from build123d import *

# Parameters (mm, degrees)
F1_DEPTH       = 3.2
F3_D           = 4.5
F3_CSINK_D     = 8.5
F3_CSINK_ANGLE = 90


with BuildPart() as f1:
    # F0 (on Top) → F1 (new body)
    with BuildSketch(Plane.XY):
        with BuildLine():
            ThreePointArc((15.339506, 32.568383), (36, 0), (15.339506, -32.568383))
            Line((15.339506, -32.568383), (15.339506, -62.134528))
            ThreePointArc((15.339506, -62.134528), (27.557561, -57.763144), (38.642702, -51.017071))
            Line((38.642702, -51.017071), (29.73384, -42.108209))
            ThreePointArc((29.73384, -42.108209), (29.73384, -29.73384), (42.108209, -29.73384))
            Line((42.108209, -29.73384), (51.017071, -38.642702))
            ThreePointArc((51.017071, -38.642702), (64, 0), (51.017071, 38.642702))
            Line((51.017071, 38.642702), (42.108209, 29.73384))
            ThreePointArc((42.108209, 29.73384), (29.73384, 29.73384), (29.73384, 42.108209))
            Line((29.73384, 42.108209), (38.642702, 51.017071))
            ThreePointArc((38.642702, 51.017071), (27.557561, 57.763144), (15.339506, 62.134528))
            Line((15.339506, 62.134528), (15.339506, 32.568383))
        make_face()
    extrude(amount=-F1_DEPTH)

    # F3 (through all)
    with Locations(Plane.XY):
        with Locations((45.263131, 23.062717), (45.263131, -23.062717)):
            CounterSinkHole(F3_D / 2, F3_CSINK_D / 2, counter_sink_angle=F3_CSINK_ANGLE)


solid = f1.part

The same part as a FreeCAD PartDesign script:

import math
import FreeCAD as App
import Part
import Sketcher

V = App.Vector
Q = App.Units.Quantity

doc = App.newDocument("Part")
body = doc.addObject("PartDesign::Body", "Body")

# Sketch on XY plane
sketch1 = doc.addObject("Sketcher::SketchObject", "Sketch")
body.addObject(sketch1)
sketch1.AttachmentSupport = (doc.XY_Plane, [""])
sketch1.MapMode = "FlatFace"
sketch1.addGeometry([
    Part.ArcOfCircle(Part.Circle(V(0, 0, 0), V(0, 0, 1), 36), math.radians(-64.779855), math.radians(64.779855)),  # 0
    Part.LineSegment(V(15.339506, -32.568383, 0), V(15.339506, -62.134528, 0)),  # 1
    Part.ArcOfCircle(Part.Circle(V(-0.000003, 0.000003, 0), V(0, 0, 1), 64.000003), math.radians(-76.132357), math.radians(-52.858018)),  # 2
    Part.LineSegment(V(38.642702, -51.017071, 0), V(29.73384, -42.108209, 0)),  # 3
    Part.ArcOfCircle(Part.Circle(V(35.921025, -35.921025, 0), V(0, 0, 1), 8.75), math.radians(45), math.radians(225)),  # 4
    Part.LineSegment(V(42.108209, -29.73384, 0), V(51.017071, -38.642702, 0)),  # 5
    Part.ArcOfCircle(Part.Circle(V(0.000002, 0, 0), V(0, 0, 1), 63.999998), math.radians(-37.141982), math.radians(37.141982)),  # 6
    Part.LineSegment(V(51.017071, 38.642702, 0), V(42.108209, 29.73384, 0)),  # 7
    Part.ArcOfCircle(Part.Circle(V(35.921025, 35.921025, 0), V(0, 0, 1), 8.75), math.radians(135), math.radians(315)),  # 8
    Part.LineSegment(V(29.73384, 42.108209, 0), V(38.642702, 51.017071, 0)),  # 9
    Part.ArcOfCircle(Part.Circle(V(-0.000003, -0.000003, 0), V(0, 0, 1), 64.000003), math.radians(52.858018), math.radians(76.132357)),  # 10
    Part.LineSegment(V(15.339506, 62.134528, 0), V(15.339506, 32.568383, 0)),  # 11
], False)
sketch1.addConstraint([
    Sketcher.Constraint("Coincident", 0, 1, 1, 1),
    Sketcher.Constraint("Coincident", 1, 2, 2, 1),
    Sketcher.Constraint("Coincident", 2, 2, 3, 1),
    Sketcher.Constraint("Coincident", 3, 2, 4, 2),
    Sketcher.Constraint("Coincident", 4, 1, 5, 1),
    Sketcher.Constraint("Coincident", 5, 2, 6, 1),
    Sketcher.Constraint("Coincident", 6, 2, 7, 1),
    Sketcher.Constraint("Coincident", 7, 2, 8, 2),
    Sketcher.Constraint("Coincident", 8, 1, 9, 1),
    Sketcher.Constraint("Coincident", 9, 2, 10, 1),
    Sketcher.Constraint("Coincident", 10, 2, 11, 1),
    Sketcher.Constraint("Coincident", 11, 2, 0, 2),
    Sketcher.Constraint("Vertical", 1),
    Sketcher.Constraint("Vertical", 11),
    Sketcher.Constraint("Coincident", 0, 3, -1, 1),
    Sketcher.Constraint("Coincident", 2, 3, -1, 1),
    Sketcher.Constraint("Coincident", 6, 3, -1, 1),
    Sketcher.Constraint("Coincident", 10, 3, -1, 1),
    Sketcher.Constraint("Radius", 0, Q("36 mm")),
    Sketcher.Constraint("Radius", 6, Q("63.999998 mm")),
    Sketcher.Constraint("Radius", 4, Q("8.75 mm")),
    Sketcher.Constraint("Radius", 8, Q("8.75 mm")),
    Sketcher.Constraint("Radius", 2, Q("64.000003 mm")),
    Sketcher.Constraint("Radius", 10, Q("64.000003 mm")),
    Sketcher.Constraint("DistanceX", 6, 3, 2, 2, Q("38.6427 mm")),
    Sketcher.Constraint("DistanceY", 2, 3, 6, 2, Q("38.642699 mm")),
    Sketcher.Constraint("DistanceX", 6, 3, 9, 2, Q("38.6427 mm")),
    Sketcher.Constraint("DistanceY", 1, 2, 1, 1, Q("29.566145 mm")),
    Sketcher.Constraint("DistanceY", 11, 2, 11, 1, Q("29.566145 mm")),
    Sketcher.Constraint("DistanceX", -1, 1, 3, 2, Q("29.73384 mm")),
    Sketcher.Constraint("DistanceY", 3, 2, -1, 1, Q("42.108209 mm")),
    Sketcher.Constraint("DistanceX", -1, 1, 4, 1, Q("42.108209 mm")),
    Sketcher.Constraint("DistanceX", -1, 1, 5, 2, Q("51.017071 mm")),
    Sketcher.Constraint("DistanceX", -1, 1, 7, 2, Q("42.108209 mm")),
    Sketcher.Constraint("DistanceY", -1, 1, 7, 2, Q("29.73384 mm")),
    Sketcher.Constraint("DistanceX", -1, 1, 8, 1, Q("29.73384 mm")),
    Sketcher.Constraint("DistanceY", 2, 3, 8, 3, Q("35.921022 mm")),
    Sketcher.Constraint("DistanceY", 4, 3, 8, 3, Q("71.842049 mm")),
])
pad1 = doc.addObject("PartDesign::Pad", "Pad")
body.addObject(pad1)
pad1.Profile = sketch1
pad1.Length = 3.2
pad1.Reversed = True

# Sketch on XY plane
sketch2 = doc.addObject("Sketcher::SketchObject", "Sketch001")
body.addObject(sketch2)
sketch2.AttachmentSupport = (doc.XY_Plane, [""])
sketch2.MapMode = "FlatFace"
sketch2.addGeometry([
    Part.Circle(V(45.3, 23.1, 0), V(0, 0, 1), 2.2),
    Part.Circle(V(45.3, -23.1, 0), V(0, 0, 1), 2.2),
], False)
sketch2.addConstraint([
    Sketcher.Constraint("Equal", 0, 1),
    Sketcher.Constraint("Symmetric", 0, 3, 1, 3, -1),
    Sketcher.Constraint("Diameter", 0, Q("4.5 mm")),
    Sketcher.Constraint("DistanceX", -1, 1, 0, 3, Q("45.263131 mm")),
    Sketcher.Constraint("DistanceY", -1, 1, 0, 3, Q("23.062717 mm")),
])
doc.recompute()
hole = doc.addObject("PartDesign::Hole", "Hole")
body.addObject(hole)
hole.Profile = sketch2
hole.ThreadType = "None"
hole.Diameter = 4.5
hole.DepthType = "ThroughAll"
hole.HoleCutType = "Countersink"
hole.HoleCutDiameter = 8.5
hole.HoleCutCountersinkAngle = 90

doc.recompute()
